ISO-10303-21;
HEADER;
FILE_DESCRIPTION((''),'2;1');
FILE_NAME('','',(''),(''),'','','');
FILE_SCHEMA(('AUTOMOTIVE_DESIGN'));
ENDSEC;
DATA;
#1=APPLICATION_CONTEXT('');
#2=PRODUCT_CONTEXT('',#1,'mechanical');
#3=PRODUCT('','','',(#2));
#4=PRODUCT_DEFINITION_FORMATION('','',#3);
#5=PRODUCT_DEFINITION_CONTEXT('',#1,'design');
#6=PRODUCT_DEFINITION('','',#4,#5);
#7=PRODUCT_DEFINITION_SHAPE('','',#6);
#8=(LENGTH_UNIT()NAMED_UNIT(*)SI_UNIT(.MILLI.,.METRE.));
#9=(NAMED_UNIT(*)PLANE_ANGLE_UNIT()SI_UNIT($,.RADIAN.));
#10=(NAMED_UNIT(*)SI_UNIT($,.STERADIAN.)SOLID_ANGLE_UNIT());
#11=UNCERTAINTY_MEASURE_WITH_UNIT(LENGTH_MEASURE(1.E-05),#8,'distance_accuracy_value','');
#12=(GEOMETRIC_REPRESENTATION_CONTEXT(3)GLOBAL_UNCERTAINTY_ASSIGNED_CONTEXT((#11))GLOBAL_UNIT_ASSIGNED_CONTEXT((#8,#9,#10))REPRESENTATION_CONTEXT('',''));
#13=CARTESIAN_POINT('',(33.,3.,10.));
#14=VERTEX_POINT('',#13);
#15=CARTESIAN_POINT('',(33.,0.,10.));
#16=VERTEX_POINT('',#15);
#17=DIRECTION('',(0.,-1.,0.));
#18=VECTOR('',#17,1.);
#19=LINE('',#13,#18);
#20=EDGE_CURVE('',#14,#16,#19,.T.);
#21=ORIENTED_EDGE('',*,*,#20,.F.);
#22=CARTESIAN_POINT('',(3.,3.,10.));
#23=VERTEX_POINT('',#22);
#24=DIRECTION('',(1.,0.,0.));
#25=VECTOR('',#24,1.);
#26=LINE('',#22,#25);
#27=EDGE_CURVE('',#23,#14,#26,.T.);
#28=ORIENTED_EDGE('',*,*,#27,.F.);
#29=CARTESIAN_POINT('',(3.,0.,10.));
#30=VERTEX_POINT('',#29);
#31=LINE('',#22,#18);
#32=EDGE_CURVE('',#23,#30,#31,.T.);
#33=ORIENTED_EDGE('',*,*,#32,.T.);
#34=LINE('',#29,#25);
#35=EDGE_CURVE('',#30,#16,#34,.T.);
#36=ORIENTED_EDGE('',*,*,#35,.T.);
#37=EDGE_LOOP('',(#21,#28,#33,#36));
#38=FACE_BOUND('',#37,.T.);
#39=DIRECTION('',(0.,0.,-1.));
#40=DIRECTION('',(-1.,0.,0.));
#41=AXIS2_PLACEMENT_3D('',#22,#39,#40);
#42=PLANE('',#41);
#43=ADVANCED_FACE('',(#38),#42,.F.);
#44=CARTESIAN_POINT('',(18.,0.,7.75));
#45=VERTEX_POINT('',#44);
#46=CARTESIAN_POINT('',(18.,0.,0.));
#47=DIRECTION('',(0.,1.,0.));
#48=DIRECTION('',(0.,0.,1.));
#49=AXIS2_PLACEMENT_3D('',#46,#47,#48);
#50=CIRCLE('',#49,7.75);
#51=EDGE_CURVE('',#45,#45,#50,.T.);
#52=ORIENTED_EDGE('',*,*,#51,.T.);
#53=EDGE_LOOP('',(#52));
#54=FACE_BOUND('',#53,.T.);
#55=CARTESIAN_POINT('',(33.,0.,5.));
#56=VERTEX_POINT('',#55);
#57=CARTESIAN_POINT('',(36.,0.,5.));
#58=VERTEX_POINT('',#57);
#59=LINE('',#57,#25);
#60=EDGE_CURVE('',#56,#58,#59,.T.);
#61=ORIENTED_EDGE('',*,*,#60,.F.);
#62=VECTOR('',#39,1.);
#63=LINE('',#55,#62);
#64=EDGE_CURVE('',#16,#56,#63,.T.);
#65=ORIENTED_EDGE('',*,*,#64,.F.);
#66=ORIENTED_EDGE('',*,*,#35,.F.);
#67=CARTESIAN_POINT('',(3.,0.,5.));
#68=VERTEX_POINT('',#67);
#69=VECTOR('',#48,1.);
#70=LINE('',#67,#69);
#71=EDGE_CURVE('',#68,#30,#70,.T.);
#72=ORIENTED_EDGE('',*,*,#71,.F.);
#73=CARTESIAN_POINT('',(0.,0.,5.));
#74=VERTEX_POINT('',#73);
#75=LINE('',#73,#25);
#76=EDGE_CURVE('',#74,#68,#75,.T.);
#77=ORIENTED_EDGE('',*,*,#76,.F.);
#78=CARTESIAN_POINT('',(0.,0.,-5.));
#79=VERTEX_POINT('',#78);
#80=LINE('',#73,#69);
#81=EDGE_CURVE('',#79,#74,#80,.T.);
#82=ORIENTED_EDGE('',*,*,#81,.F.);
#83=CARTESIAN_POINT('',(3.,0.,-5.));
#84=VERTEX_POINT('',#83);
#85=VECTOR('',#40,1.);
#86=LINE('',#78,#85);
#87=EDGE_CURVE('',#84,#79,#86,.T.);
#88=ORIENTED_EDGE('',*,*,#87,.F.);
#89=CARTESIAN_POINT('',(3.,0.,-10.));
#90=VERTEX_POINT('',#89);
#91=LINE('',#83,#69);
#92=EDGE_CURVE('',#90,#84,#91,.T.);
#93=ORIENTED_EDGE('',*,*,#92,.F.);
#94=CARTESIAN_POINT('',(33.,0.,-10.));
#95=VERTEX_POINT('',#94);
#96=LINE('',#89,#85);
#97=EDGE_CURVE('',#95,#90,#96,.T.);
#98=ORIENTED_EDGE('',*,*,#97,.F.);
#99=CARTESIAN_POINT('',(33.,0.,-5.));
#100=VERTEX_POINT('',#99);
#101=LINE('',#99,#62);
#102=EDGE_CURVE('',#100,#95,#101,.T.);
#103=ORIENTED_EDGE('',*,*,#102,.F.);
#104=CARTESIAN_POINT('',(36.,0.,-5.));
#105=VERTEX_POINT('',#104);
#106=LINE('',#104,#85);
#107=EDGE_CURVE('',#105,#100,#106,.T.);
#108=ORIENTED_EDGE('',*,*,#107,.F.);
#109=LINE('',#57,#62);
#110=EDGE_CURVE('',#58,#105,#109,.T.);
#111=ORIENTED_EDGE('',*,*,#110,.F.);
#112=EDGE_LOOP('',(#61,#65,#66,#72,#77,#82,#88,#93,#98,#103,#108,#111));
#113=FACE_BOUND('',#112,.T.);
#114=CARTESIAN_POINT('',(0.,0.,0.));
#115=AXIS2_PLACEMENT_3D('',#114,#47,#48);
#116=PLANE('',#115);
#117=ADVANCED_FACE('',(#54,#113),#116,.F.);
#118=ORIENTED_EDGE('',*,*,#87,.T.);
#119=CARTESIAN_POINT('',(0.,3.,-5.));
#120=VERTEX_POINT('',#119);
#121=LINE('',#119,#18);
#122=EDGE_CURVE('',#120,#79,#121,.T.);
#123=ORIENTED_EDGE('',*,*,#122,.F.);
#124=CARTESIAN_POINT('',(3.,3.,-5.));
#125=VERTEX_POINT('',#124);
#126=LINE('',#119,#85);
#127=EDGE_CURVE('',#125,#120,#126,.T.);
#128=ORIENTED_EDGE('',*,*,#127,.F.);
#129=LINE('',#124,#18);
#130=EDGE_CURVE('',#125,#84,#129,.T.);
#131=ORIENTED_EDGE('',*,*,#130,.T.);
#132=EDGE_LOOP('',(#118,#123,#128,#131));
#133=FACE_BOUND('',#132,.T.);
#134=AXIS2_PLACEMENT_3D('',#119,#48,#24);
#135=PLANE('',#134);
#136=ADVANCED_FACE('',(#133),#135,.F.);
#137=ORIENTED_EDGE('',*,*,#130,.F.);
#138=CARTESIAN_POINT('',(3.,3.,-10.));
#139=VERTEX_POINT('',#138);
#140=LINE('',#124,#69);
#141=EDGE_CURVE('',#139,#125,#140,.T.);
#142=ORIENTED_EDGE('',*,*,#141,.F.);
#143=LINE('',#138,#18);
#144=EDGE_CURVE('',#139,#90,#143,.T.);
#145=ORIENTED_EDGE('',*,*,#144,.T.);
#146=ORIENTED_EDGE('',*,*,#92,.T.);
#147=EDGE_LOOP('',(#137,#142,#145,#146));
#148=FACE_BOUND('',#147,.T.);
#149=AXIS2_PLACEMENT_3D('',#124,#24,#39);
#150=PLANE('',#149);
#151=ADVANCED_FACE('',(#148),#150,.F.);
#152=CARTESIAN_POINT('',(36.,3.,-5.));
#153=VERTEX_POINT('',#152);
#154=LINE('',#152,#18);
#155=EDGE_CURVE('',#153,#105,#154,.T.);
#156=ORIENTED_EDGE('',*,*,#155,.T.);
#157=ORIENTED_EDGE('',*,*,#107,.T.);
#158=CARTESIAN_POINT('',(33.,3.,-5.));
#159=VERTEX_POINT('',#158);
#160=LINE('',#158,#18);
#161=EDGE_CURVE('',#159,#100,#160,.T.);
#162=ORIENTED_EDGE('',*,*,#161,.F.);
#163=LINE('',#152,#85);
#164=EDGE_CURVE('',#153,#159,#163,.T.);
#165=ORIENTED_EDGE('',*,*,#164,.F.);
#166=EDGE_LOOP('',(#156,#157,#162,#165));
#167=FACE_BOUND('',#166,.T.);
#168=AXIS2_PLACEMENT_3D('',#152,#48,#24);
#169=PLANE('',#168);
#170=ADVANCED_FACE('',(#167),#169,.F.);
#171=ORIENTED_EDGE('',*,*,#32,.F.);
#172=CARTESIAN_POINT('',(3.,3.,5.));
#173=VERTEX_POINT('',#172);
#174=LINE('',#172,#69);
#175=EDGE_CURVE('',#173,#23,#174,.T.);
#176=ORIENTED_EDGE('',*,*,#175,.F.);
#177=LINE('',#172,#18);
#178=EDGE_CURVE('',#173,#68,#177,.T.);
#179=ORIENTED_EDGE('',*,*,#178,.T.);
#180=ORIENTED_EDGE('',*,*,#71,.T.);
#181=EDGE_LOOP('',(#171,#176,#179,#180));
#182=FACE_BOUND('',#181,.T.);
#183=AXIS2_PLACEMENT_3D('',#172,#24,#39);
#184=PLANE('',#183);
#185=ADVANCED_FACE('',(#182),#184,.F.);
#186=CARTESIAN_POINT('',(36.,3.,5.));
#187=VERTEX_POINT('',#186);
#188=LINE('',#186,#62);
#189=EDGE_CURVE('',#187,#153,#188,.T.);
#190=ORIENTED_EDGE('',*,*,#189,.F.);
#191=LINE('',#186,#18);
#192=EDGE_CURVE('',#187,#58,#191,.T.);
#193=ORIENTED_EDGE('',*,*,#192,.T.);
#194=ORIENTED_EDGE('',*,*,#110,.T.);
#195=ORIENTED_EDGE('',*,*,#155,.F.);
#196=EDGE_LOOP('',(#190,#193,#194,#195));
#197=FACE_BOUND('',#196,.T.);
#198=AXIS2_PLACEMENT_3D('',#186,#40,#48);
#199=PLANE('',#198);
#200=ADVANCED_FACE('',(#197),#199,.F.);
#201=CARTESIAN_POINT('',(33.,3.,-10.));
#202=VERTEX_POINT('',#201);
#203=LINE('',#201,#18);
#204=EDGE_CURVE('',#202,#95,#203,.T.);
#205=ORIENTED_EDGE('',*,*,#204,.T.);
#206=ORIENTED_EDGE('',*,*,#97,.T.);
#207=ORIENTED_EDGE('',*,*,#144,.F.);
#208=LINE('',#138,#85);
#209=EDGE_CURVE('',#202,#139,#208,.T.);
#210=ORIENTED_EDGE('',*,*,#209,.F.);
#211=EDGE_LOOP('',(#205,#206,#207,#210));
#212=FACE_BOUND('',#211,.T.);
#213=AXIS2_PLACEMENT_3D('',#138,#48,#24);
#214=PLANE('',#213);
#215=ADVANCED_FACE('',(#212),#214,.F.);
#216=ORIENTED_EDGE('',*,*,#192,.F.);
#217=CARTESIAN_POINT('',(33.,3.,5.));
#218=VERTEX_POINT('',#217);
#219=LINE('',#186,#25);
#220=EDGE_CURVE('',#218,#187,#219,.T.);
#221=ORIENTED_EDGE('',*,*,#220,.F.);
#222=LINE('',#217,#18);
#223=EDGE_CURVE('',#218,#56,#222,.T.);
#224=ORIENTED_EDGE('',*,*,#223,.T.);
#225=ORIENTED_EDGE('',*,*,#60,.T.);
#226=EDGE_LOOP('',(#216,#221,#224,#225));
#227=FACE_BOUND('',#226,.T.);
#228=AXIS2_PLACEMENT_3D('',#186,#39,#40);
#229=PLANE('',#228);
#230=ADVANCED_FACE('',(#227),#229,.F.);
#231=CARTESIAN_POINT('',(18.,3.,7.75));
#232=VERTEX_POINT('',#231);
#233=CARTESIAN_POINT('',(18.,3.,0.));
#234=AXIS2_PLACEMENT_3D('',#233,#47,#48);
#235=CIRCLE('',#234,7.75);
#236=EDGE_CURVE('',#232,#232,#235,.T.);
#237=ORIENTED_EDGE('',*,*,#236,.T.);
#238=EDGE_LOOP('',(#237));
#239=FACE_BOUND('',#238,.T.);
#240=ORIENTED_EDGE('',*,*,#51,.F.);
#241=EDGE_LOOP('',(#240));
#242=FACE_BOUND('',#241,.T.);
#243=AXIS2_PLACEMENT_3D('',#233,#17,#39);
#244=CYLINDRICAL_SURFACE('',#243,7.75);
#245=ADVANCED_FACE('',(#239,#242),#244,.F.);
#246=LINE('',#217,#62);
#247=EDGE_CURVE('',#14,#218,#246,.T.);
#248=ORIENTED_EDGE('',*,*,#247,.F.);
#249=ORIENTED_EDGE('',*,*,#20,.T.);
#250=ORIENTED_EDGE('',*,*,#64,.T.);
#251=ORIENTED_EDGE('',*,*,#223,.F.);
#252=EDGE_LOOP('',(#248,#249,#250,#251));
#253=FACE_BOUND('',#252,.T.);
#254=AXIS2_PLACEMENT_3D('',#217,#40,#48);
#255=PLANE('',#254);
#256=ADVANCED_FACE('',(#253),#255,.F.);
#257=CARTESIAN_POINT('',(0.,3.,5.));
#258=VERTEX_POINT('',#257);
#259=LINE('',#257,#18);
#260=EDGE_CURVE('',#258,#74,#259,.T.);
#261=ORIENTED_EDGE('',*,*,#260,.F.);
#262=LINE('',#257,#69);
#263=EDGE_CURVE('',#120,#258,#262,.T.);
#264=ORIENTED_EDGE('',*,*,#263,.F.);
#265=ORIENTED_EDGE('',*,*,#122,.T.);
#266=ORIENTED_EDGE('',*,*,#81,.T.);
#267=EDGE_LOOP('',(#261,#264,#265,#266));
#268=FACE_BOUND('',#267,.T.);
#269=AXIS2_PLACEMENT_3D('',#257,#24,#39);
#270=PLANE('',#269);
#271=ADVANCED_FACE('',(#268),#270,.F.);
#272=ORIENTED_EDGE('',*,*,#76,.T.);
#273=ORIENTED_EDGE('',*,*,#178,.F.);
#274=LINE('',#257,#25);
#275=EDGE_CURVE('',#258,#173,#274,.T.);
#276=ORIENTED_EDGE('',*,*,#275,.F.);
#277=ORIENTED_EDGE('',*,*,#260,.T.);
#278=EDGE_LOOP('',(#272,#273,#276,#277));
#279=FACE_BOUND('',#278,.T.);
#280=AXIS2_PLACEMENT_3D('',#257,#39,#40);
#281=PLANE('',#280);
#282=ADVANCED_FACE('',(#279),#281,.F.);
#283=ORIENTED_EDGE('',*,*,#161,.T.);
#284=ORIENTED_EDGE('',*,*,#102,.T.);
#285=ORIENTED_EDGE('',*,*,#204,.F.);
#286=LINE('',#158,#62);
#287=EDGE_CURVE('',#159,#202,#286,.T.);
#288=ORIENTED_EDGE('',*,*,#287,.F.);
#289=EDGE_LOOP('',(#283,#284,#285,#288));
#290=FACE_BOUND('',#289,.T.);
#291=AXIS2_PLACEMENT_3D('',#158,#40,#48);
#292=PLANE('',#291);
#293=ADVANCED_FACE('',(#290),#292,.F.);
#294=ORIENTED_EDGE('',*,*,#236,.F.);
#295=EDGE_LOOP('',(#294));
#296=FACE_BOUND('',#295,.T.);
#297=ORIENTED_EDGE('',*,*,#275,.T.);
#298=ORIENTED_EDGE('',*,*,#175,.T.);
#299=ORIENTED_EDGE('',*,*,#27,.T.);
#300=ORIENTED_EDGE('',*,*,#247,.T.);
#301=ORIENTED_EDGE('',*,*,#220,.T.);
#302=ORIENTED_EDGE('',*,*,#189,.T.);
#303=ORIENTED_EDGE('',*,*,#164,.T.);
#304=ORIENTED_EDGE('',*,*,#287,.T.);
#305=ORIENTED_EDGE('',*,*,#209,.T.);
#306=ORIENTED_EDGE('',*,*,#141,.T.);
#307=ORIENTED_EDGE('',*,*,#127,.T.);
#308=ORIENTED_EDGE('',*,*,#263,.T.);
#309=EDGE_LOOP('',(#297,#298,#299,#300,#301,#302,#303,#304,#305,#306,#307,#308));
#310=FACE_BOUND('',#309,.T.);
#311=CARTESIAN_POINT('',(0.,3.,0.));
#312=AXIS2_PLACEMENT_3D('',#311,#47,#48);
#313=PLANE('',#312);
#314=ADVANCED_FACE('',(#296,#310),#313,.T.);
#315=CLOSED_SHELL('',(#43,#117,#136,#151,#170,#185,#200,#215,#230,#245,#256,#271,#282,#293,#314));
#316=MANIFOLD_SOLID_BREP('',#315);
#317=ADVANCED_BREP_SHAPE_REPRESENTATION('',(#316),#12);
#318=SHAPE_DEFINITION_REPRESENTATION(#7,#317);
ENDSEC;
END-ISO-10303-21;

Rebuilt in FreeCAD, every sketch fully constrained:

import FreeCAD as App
import Part
import Sketcher
from FreeCAD import Vector

doc = App.newDocument("Part")
body = doc.addObject("PartDesign::Body", "Body")

# Sketch on XZ plane
sketch1 = body.newObject("Sketcher::SketchObject", "Sketch")
sketch1.AttachmentSupport = (doc.getObject("XZ_Plane"), [""])
sketch1.MapMode = "FlatFace"
sketch1.addGeometry([
    Part.LineSegment(Vector(0, -5, 0), Vector(0, 5, 0)),  # 0
    Part.LineSegment(Vector(0, 5, 0), Vector(3, 5, 0)),  # 1
    Part.LineSegment(Vector(3, 5, 0), Vector(3, 10, 0)),  # 2
    Part.LineSegment(Vector(3, 10, 0), Vector(33, 10, 0)),  # 3
    Part.LineSegment(Vector(33, 10, 0), Vector(33, 5, 0)),  # 4
    Part.LineSegment(Vector(33, 5, 0), Vector(36, 5, 0)),  # 5
    Part.LineSegment(Vector(36, 5, 0), Vector(36, -5, 0)),  # 6
    Part.LineSegment(Vector(36, -5, 0), Vector(33, -5, 0)),  # 7
    Part.LineSegment(Vector(33, -5, 0), Vector(33, -10, 0)),  # 8
    Part.LineSegment(Vector(33, -10, 0), Vector(3, -10, 0)),  # 9
    Part.LineSegment(Vector(3, -10, 0), Vector(3, -5, 0)),  # 10
    Part.LineSegment(Vector(3, -5, 0), Vector(0, -5, 0)),  # 11
    Part.Circle(Vector(18, 0, 0), Vector(0, 0, 1), 7.8),  # 12
], False)
sketch1.addConstraint([
    Sketcher.Constraint("Coincident", 0, 2, 1, 1),
    Sketcher.Constraint("Coincident", 1, 2, 2, 1),
    Sketcher.Constraint("Coincident", 2, 2, 3, 1),
    Sketcher.Constraint("Coincident", 3, 2, 4, 1),
    Sketcher.Constraint("Coincident", 4, 2, 5, 1),
    Sketcher.Constraint("Coincident", 5, 2, 6, 1),
    Sketcher.Constraint("Coincident", 6, 2, 7, 1),
    Sketcher.Constraint("Coincident", 7, 2, 8, 1),
    Sketcher.Constraint("Coincident", 8, 2, 9, 1),
    Sketcher.Constraint("Coincident", 9, 2, 10, 1),
    Sketcher.Constraint("Coincident", 10, 2, 11, 1),
    Sketcher.Constraint("Coincident", 11, 2, 0, 1),
    Sketcher.Constraint("Vertical", 0),
    Sketcher.Constraint("Horizontal", 1),
    Sketcher.Constraint("Vertical", 2),
    Sketcher.Constraint("Horizontal", 3),
    Sketcher.Constraint("Vertical", 4),
    Sketcher.Constraint("Horizontal", 5),
    Sketcher.Constraint("Vertical", 6),
    Sketcher.Constraint("Horizontal", 7),
    Sketcher.Constraint("Vertical", 8),
    Sketcher.Constraint("Horizontal", 9),
    Sketcher.Constraint("Vertical", 10),
    Sketcher.Constraint("Horizontal", 11),
    Sketcher.Constraint("Symmetric", 0, 2, 11, 2, -1, 1),
    Sketcher.Constraint("Symmetric", 4, 2, 7, 2, -1),
    Sketcher.Constraint("Symmetric", 2, 2, 9, 2, -1),
    Sketcher.Constraint("PointOnObject", 12, 3, -1),
    Sketcher.Constraint("Horizontal", 1, 2, 4, 2),
    Sketcher.Constraint("Equal", 1, 5),
    Sketcher.Constraint("Diameter", 12, 15.5),
    Sketcher.Constraint("DistanceX", 1, 1, 1, 2, 3.0),
    Sketcher.Constraint("DistanceX", 3, 1, 3, 2, 30.0),
    Sketcher.Constraint("DistanceY", 0, 1, 0, 2, 10.0),
    Sketcher.Constraint("DistanceY", 2, 1, 2, 2, 5.0),
    Sketcher.Constraint("DistanceX", -1, 1, 12, 3, 18.0),
])
pad1 = body.newObject("PartDesign::Pad", "Pad")
pad1.Profile = sketch1
pad1.Length = 3
pad1.Reversed = True

doc.recompute()
